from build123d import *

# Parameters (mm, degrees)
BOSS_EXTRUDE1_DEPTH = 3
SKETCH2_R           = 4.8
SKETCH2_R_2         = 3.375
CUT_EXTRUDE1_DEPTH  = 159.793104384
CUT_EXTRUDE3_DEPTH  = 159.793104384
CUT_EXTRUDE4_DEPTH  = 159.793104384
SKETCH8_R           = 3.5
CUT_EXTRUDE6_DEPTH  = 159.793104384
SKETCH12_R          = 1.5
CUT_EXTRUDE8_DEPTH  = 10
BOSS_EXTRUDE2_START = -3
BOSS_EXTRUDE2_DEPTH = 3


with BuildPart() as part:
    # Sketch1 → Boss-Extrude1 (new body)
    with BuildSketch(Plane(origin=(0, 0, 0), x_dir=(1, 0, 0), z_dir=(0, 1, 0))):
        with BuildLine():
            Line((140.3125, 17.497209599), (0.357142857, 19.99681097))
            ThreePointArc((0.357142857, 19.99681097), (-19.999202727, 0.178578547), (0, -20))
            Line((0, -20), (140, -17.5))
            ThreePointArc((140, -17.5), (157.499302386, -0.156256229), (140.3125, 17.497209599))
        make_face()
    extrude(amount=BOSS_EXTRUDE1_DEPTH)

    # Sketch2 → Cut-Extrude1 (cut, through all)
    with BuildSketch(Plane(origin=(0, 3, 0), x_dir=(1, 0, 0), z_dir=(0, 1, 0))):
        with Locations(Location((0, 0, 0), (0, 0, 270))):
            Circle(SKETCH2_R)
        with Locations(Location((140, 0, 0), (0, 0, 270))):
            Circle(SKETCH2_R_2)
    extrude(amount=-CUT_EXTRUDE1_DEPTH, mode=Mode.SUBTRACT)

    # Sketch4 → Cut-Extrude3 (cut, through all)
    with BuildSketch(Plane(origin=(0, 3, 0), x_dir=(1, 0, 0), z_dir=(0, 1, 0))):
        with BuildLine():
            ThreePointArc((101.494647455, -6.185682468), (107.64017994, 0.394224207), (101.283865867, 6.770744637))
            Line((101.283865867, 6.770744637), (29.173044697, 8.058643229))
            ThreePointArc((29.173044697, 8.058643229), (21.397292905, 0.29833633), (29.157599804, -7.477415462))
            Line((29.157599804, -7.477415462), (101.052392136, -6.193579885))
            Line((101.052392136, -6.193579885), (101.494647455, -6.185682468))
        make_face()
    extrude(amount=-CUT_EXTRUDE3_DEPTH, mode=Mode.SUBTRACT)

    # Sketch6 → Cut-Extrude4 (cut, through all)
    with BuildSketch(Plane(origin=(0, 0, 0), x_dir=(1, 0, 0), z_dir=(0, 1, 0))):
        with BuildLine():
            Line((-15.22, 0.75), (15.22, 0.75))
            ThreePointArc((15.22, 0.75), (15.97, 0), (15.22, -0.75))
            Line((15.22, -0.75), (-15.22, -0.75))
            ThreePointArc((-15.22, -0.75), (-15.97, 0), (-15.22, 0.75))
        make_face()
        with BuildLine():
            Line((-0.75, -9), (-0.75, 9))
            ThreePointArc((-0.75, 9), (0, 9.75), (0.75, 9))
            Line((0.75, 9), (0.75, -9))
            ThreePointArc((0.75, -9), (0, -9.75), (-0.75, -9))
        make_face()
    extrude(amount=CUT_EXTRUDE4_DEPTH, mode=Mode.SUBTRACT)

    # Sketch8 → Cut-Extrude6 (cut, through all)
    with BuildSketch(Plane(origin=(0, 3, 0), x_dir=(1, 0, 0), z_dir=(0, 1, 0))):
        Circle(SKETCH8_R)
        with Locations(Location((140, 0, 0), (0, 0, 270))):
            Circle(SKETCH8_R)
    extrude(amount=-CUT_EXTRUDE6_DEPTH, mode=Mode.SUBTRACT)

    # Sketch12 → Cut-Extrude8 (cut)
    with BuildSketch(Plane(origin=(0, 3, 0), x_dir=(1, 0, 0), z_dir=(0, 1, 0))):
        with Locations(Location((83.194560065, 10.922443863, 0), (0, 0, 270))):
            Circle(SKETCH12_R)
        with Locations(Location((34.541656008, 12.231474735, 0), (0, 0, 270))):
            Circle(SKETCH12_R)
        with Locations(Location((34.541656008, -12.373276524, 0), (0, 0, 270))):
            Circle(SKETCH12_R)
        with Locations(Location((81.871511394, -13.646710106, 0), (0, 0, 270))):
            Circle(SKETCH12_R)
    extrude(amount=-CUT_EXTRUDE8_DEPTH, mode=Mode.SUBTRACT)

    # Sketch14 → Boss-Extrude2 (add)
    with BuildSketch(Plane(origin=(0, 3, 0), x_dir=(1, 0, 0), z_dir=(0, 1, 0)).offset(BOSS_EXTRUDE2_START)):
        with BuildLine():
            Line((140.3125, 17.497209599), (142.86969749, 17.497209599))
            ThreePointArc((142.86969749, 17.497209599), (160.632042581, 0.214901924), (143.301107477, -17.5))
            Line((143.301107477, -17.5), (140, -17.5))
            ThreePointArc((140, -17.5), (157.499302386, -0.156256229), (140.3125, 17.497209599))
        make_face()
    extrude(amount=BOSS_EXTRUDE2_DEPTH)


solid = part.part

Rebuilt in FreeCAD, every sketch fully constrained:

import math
import FreeCAD as App
import Part
import Sketcher

V = App.Vector

doc = App.newDocument("Part")
body = doc.addObject("PartDesign::Body", "Body")

sketch1 = body.newObject("Sketcher::SketchObject", "Sketch")
sketch1.AttachmentSupport = (doc.getObject("XZ_Plane"), [""])
sketch1.MapMode = "FlatFace"
sketch1.addGeometry([
    Part.LineSegment(V(140, -17, 0), V(0, -20, 0)),
    Part.ArcOfCircle(Part.Circle(V(0, 0, 0), V(0, 0, 1), 20), math.radians(90), math.radians(271)),
    Part.LineSegment(V(0, 20, 0), V(140, 18, 0)),
    Part.ArcOfCircle(Part.Circle(V(140, 0, 0), V(0, 0, 1), 18), math.radians(-89), math.radians(90)),
], False)
sketch1.addConstraint([
    Sketcher.Constraint("Tangent", 0, 2, 1, 2),
    Sketcher.Constraint("Coincident", 1, 1, 2, 1),
    Sketcher.Constraint("Coincident", 2, 2, 3, 2),
    Sketcher.Constraint("Tangent", 3, 1, 0, 1),
    Sketcher.Constraint("Coincident", 1, 3, -1, 1),
    Sketcher.Constraint("PointOnObject", 3, 3, -1),
    Sketcher.Constraint("PointOnObject", 1, 1, -2),
    Sketcher.Constraint("Vertical", 3, 3, 2, 2),
    Sketcher.Constraint("Radius", 1, 20.0),
    Sketcher.Constraint("Radius", 3, 17.5),
    Sketcher.Constraint("DistanceX", -1, 1, 3, 3, 140.0),
])
pad1 = body.newObject("PartDesign::Pad", "Pad")
pad1.Profile = sketch1
pad1.Length = 3
pad1.Reversed = True

sketch2 = body.newObject("Sketcher::SketchObject", "Sketch001")
sketch2.AttachmentSupport = (doc.getObject("XZ_Plane"), [""])
sketch2.MapMode = "FlatFace"
sketch2.AttachmentOffset = App.Placement(V(0, 0, -3), App.Rotation())
sketch2.addGeometry([
    Part.Circle(V(0, 0, 0), V(0, 0, 1), 4.8),
    Part.Circle(V(140, 0, 0), V(0, 0, 1), 3.4),
], False)
sketch2.addConstraint([
    Sketcher.Constraint("Coincident", 0, 3, -1, 1),
    Sketcher.Constraint("PointOnObject", 1, 3, -1),
    Sketcher.Constraint("Diameter", 0, 9.6),
    Sketcher.Constraint("Diameter", 1, 6.75),
    Sketcher.Constraint("DistanceX", -1, 1, 1, 3, 140.0),
])
pocket1 = body.newObject("PartDesign::Pocket", "Pocket")
pocket1.Profile = sketch2
pocket1.Type = "ThroughAll"
pocket1.Reversed = True

sketch3 = body.newObject("Sketcher::SketchObject", "Sketch002")
sketch3.AttachmentSupport = (doc.getObject("XZ_Plane"), [""])
sketch3.MapMode = "FlatFace"
sketch3.AttachmentOffset = App.Placement(V(0, 0, -3), App.Rotation())
sketch3.addGeometry([
    Part.ArcOfCircle(Part.Circle(V(101.16, -0.29, 0), V(0, 0, 1), 6.48), math.radians(-89), math.radians(87)),
    Part.LineSegment(V(101.28, -6.77, 0), V(29.17, -8.06, 0)),
    Part.ArcOfCircle(Part.Circle(V(29.17, -0.29, 0), V(0, 0, 1), 7.77), math.radians(90), math.radians(270)),
    Part.LineSegment(V(29.16, 7.48, 0), V(101.05, 6.19, 0)),
    Part.LineSegment(V(101.05, 6.19, 0), V(101.49, 6.19, 0)),
], False)
sketch3.addConstraint([
    Sketcher.Constraint("Coincident", 0, 1, 1, 1),
    Sketcher.Constraint("Coincident", 1, 2, 2, 2),
    Sketcher.Constraint("Coincident", 2, 1, 3, 1),
    Sketcher.Constraint("Coincident", 3, 2, 4, 1),
    Sketcher.Constraint("Coincident", 4, 2, 0, 2),
    Sketcher.Constraint("Parallel", 3, 4),
    Sketcher.Constraint("Radius", 0, 6.483204),
    Sketcher.Constraint("Radius", 2, 7.768033),
    Sketcher.Constraint("DistanceX", -1, 1, 2, 1, 29.1576),
    Sketcher.Constraint("DistanceY", 1, 2, 0, 1, 1.287899),
    Sketcher.Constraint("Distance", 1, 72.122321),
    Sketcher.Constraint("DistanceY", -1, 1, 3, 2, 6.19358),
    Sketcher.Constraint("DistanceX", 2, 3, 0, 3, 71.992512),
    Sketcher.Constraint("DistanceX", 0, 3, 0, 1, 0.126032),
    Sketcher.Constraint("DistanceX", 3, 2, 0, 3, 0.105442),
    Sketcher.Constraint("DistanceY", 0, 3, 4, 2, 6.474449),
    Sketcher.Constraint("Distance", 3, 71.906254),
])
pocket2 = body.newObject("PartDesign::Pocket", "Pocket001")
pocket2.Profile = sketch3
pocket2.Type = "ThroughAll"
pocket2.Reversed = True

sketch4 = body.newObject("Sketcher::SketchObject", "Sketch003")
sketch4.AttachmentSupport = (doc.getObject("XZ_Plane"), [""])
sketch4.MapMode = "FlatFace"
sketch4.addGeometry([
    Part.ArcOfCircle(Part.Circle(V(-15.2, 0, 0), V(0, 0, 1), 0.8), math.radians(90), math.radians(270)),
    Part.LineSegment(V(-15.2, 0.8, 0), V(-0.8, 0.8, 0)),
    Part.LineSegment(V(-0.8, 0.8, 0), V(-0.8, 9, 0)),
    Part.ArcOfCircle(Part.Circle(V(0, 9, 0), V(0, 0, 1), 0.8), math.radians(0), math.radians(180)),
    Part.LineSegment(V(0.8, 9, 0), V(0.8, 0.8, 0)),
    Part.LineSegment(V(0.8, 0.8, 0), V(15.2, 0.8, 0)),
    Part.ArcOfCircle(Part.Circle(V(15.2, 0, 0), V(0, 0, 1), 0.8), math.radians(-90), math.radians(90)),
    Part.LineSegment(V(15.2, -0.8, 0), V(0.8, -0.8, 0)),
    Part.LineSegment(V(0.8, -0.8, 0), V(0.8, -9, 0)),
    Part.ArcOfCircle(Part.Circle(V(0, -9, 0), V(0, 0, 1), 0.8), math.radians(180), math.radians(360)),
    Part.LineSegment(V(-0.8, -9, 0), V(-0.8, -0.8, 0)),
    Part.LineSegment(V(-0.8, -0.8, 0), V(-15.2, -0.8, 0)),
], False)
sketch4.addConstraint([
    Sketcher.Constraint("Tangent", 0, 1, 1, 1),
    Sketcher.Constraint("Coincident", 1, 2, 2, 1),
    Sketcher.Constraint("Tangent", 2, 2, 3, 2),
    Sketcher.Constraint("Tangent", 3, 1, 4, 1),
    Sketcher.Constraint("Coincident", 4, 2, 5, 1),
    Sketcher.Constraint("Tangent", 5, 2, 6, 2),
    Sketcher.Constraint("Tangent", 6, 1, 7, 1),
    Sketcher.Constraint("Coincident", 7, 2, 8, 1),
    Sketcher.Constraint("Tangent", 8, 2, 9, 2),
    Sketcher.Constraint("Tangent", 9, 1, 10, 1),
    Sketcher.Constraint("Coincident", 10, 2, 11, 1),
    Sketcher.Constraint("Tangent", 11, 2, 0, 2),
    Sketcher.Constraint("Horizontal", 1),
    Sketcher.Constraint("Vertical", 2),
    Sketcher.Constraint("Vertical", 4),
    Sketcher.Constraint("Horizontal", 5),
    Sketcher.Constraint("Horizontal", 7),
    Sketcher.Constraint("Vertical", 8),
    Sketcher.Constraint("Vertical", 10),
    Sketcher.Constraint("Horizontal", 11),
    Sketcher.Constraint("Equal", 0, 3),
    Sketcher.Constraint("Equal", 3, 6),
    Sketcher.Constraint("Equal", 6, 9),
    Sketcher.Constraint("Symmetric", 0, 3, 6, 3, -1, 1),
    Sketcher.Constraint("Symmetric", 3, 3, 9, 3, -1, 1),
    Sketcher.Constraint("Symmetric", 1, 2, 4, 2, -2),
    Sketcher.Constraint("Radius", 0, 0.75),
    Sketcher.Constraint("DistanceY", -1, 1, 3, 3, 9.0),
    Sketcher.Constraint("DistanceX", 1, 1, 1, 2, 14.47),
])
pocket3 = body.newObject("PartDesign::Pocket", "Pocket002")
pocket3.Profile = sketch4
pocket3.Type = "ThroughAll"

sketch5 = body.newObject("Sketcher::SketchObject", "Sketch004")
sketch5.AttachmentSupport = (doc.getObject("XZ_Plane"), [""])
sketch5.MapMode = "FlatFace"
sketch5.AttachmentOffset = App.Placement(V(0, 0, -3), App.Rotation())
sketch5.addGeometry([
    Part.Circle(V(0, 0, 0), V(0, 0, 1), 3.5),
    Part.Circle(V(140, 0, 0), V(0, 0, 1), 3.5),
], False)
sketch5.addConstraint([
    Sketcher.Constraint("Coincident", 0, 3, -1, 1),
    Sketcher.Constraint("Equal", 0, 1),
    Sketcher.Constraint("PointOnObject", 1, 3, -1),
    Sketcher.Constraint("Diameter", 0, 7.0),
    Sketcher.Constraint("DistanceX", -1, 1, 1, 3, 140.0),
])
pocket4 = body.newObject("PartDesign::Pocket", "Pocket003")
pocket4.Profile = sketch5
pocket4.Type = "ThroughAll"
pocket4.Reversed = True

sketch6 = body.newObject("Sketcher::SketchObject", "Sketch005")
sketch6.AttachmentSupport = (doc.getObject("XZ_Plane"), [""])
sketch6.MapMode = "FlatFace"
sketch6.AttachmentOffset = App.Placement(V(0, 0, -3), App.Rotation())
sketch6.addGeometry([
    Part.Circle(V(83.2, -10.9, 0), V(0, 0, 1), 1.5),
    Part.Circle(V(34.5, -12.2, 0), V(0, 0, 1), 1.5),
    Part.Circle(V(34.5, 12.4, 0), V(0, 0, 1), 1.5),
    Part.Circle(V(81.9, 13.6, 0), V(0, 0, 1), 1.5),
], False)
sketch6.addConstraint([
    Sketcher.Constraint("Equal", 0, 1),
    Sketcher.Constraint("Equal", 1, 2),
    Sketcher.Constraint("Equal", 2, 3),
    Sketcher.Constraint("Vertical", 1, 3, 2, 3),
    Sketcher.Constraint("Diameter", 0, 3.0),
    Sketcher.Constraint("DistanceX", -1, 1, 0, 3, 83.19456),
    Sketcher.Constraint("DistanceX", -1, 1, 3, 3, 81.871511),
    Sketcher.Constraint("DistanceY", -1, 1, 3, 3, 13.64671),
    Sketcher.Constraint("DistanceY", 1, 3, 0, 3, 1.309031),
    Sketcher.Constraint("DistanceY", 1, 3, 2, 3, 24.604751),
    Sketcher.Constraint("DistanceY", 0, 3, -1, 1, 10.922444),
    Sketcher.Constraint("DistanceX", -1, 1, 1, 3, 34.541656),
])
pocket5 = body.newObject("PartDesign::Pocket", "Pocket004")
pocket5.Profile = sketch6
pocket5.Length = 10
pocket5.Reversed = True

sketch7 = body.newObject("Sketcher::SketchObject", "Sketch006")
sketch7.AttachmentSupport = (doc.getObject("XZ_Plane"), [""])
sketch7.MapMode = "FlatFace"
sketch7.addGeometry([
    Part.LineSegment(V(142.869697, -17.49721, 0), V(140.3125, -17.49721, 0)),
    Part.ArcOfCircle(Part.Circle(V(140, 0, 0), V(0, 0, 1), 17.5), math.radians(-88.976807), math.radians(90)),
    Part.LineSegment(V(140, 17.5, 0), V(143.301107, 17.5, 0)),
    Part.ArcOfCircle(Part.Circle(V(143.133372, 0.000804, 0), V(0, 0, 1), 17.5), math.radians(-90.863315), math.radians(89.450818)),
], False)
sketch7.addConstraint([
    Sketcher.Constraint("Coincident", 0, 2, 1, 1),
    Sketcher.Constraint("Tangent", 1, 2, 2, 1),
    Sketcher.Constraint("Coincident", 2, 2, 3, 2),
    Sketcher.Constraint("Coincident", 3, 1, 0, 1),
    Sketcher.Constraint("Horizontal", 0),
    Sketcher.Constraint("Horizontal", 2),
    Sketcher.Constraint("Equal", 1, 3),
    Sketcher.Constraint("PointOnObject", 1, 3, -1),
    Sketcher.Constraint("Radius", 1, 17.5),
    Sketcher.Constraint("DistanceX", -1, 1, 1, 3, 140.0),
    Sketcher.Constraint("DistanceX", -1, 1, 0, 2, 140.3125),
    Sketcher.Constraint("DistanceX", 0, 2, 0, 1, 2.557197),
    Sketcher.Constraint("DistanceX", 2, 1, 2, 2, 3.301107),
])
pad2 = body.newObject("PartDesign::Pad", "Pad001")
pad2.Profile = sketch7
pad2.Length = 3
pad2.Reversed = True

doc.recompute()
